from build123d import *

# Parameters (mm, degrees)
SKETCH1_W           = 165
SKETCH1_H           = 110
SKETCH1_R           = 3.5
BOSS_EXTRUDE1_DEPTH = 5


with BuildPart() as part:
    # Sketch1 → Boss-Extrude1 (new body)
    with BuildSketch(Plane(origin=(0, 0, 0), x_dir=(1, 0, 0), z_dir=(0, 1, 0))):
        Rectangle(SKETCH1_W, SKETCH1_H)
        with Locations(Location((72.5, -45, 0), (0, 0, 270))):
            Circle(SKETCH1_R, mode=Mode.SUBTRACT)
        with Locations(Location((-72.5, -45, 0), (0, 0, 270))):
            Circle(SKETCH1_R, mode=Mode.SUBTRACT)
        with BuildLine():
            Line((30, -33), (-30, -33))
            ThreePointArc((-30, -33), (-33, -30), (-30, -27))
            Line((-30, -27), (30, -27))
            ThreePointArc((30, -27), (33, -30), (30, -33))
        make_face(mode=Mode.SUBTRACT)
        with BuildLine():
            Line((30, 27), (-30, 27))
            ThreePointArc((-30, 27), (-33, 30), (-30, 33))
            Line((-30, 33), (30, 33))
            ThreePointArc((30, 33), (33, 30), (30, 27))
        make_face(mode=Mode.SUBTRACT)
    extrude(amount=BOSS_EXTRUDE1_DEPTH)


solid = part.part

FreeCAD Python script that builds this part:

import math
import FreeCAD as App
import Part
import Sketcher


def add_polygon(sketch, points):
    """Adds a closed chain of lines whose ends are joined by coincident constraints."""
    first, n = sketch.GeometryCount, len(points)
    for a, b in zip(points, points[1:] + points[:1]):
        sketch.addGeometry(Part.LineSegment(App.Vector(*a, 0), App.Vector(*b, 0)), False)
    for i in range(n):
        sketch.addConstraint(Sketcher.Constraint("Coincident", first + i, 2, first + (i + 1) % n, 1))

doc = App.newDocument("Part")
body = doc.addObject("PartDesign::Body", "Body")

# Sketch on XZ plane
sketch1 = body.newObject("Sketcher::SketchObject", "Sketch")
sketch1.AttachmentSupport = (doc.getObject("XZ_Plane"), [""])
sketch1.MapMode = "FlatFace"
add_polygon(sketch1, [(-82.5, -55), (-82.5, 55), (82.5, 55), (82.5, -55)])  # lines 0-3
sketch1.addGeometry(Part.Circle(App.Vector(-72.5, 45, 0), App.Vector(0, 0, 1), 3.5), False)  # 4
sketch1.addGeometry(Part.ArcOfCircle(Part.Circle(App.Vector(30, 30, 0), App.Vector(0, 0, 1), 3), math.radians(-90), math.radians(90)), False)  # 5
sketch1.addGeometry(Part.LineSegment(App.Vector(30, 33, 0), App.Vector(-30, 33, 0)), False)  # 6
sketch1.addGeometry(Part.ArcOfCircle(Part.Circle(App.Vector(-30, 30, 0), App.Vector(0, 0, 1), 3), math.radians(90), math.radians(270)), False)  # 7
sketch1.addGeometry(Part.LineSegment(App.Vector(-30, 27, 0), App.Vector(30, 27, 0)), False)  # 8
sketch1.addGeometry(Part.Circle(App.Vector(72.5, 45, 0), App.Vector(0, 0, 1), 3.5), False)  # 9
sketch1.addGeometry(Part.ArcOfCircle(Part.Circle(App.Vector(30, -30, 0), App.Vector(0, 0, 1), 3), math.radians(-90), math.radians(90)), False)  # 10
sketch1.addGeometry(Part.LineSegment(App.Vector(30, -27, 0), App.Vector(-30, -27, 0)), False)  # 11
sketch1.addGeometry(Part.ArcOfCircle(Part.Circle(App.Vector(-30, -30, 0), App.Vector(0, 0, 1), 3), math.radians(90), math.radians(270)), False)  # 12
sketch1.addGeometry(Part.LineSegment(App.Vector(-30, -33, 0), App.Vector(30, -33, 0)), False)  # 13
sketch1.addConstraint([
    Sketcher.Constraint("Tangent", 5, 2, 6, 1),
    Sketcher.Constraint("Tangent", 6, 2, 7, 1),
    Sketcher.Constraint("Tangent", 7, 2, 8, 1),
    Sketcher.Constraint("Tangent", 8, 2, 5, 1),
    Sketcher.Constraint("Tangent", 10, 2, 11, 1),
    Sketcher.Constraint("Tangent", 11, 2, 12, 1),
    Sketcher.Constraint("Tangent", 12, 2, 13, 1),
    Sketcher.Constraint("Tangent", 13, 2, 10, 1),
    Sketcher.Constraint("Vertical", 0),
    Sketcher.Constraint("Horizontal", 1),
    Sketcher.Constraint("Vertical", 2),
    Sketcher.Constraint("Horizontal", 3),
    Sketcher.Constraint("Horizontal", 6),
    Sketcher.Constraint("Horizontal", 8),
    Sketcher.Constraint("Horizontal", 11),
    Sketcher.Constraint("Horizontal", 13),
    Sketcher.Constraint("Equal", 4, 9),
    Sketcher.Constraint("Equal", 7, 10),
    Sketcher.Constraint("Symmetric", 7, 3, 10, 3, -1, 1),
    Sketcher.Constraint("Symmetric", 0, 2, 2, 2, -1, 1),
    Sketcher.Constraint("Symmetric", 4, 3, 9, 3, -2),
    Sketcher.Constraint("Vertical", 5, 3, 10, 3),
    Sketcher.Constraint("Vertical", 7, 3, 12, 3),
    Sketcher.Constraint("Diameter", 4, 7.0),
    Sketcher.Constraint("Radius", 5, 3.0),
    Sketcher.Constraint("DistanceX", 1, 1, 1, 2, 165.0),
    Sketcher.Constraint("DistanceX", 6, 2, 6, 1, 60.0),
    Sketcher.Constraint("DistanceY", 0, 1, 0, 2, 110.0),
    Sketcher.Constraint("DistanceY", -1, 1, 4, 3, 45.0),
    Sketcher.Constraint("DistanceY", -1, 1, 5, 3, 30.0),
    Sketcher.Constraint("DistanceX", 4, 3, 9, 3, 145.0),
])
pad1 = body.newObject("PartDesign::Pad", "Pad")
pad1.Profile = sketch1
pad1.Length = 5
pad1.Reversed = True

doc.recompute()
